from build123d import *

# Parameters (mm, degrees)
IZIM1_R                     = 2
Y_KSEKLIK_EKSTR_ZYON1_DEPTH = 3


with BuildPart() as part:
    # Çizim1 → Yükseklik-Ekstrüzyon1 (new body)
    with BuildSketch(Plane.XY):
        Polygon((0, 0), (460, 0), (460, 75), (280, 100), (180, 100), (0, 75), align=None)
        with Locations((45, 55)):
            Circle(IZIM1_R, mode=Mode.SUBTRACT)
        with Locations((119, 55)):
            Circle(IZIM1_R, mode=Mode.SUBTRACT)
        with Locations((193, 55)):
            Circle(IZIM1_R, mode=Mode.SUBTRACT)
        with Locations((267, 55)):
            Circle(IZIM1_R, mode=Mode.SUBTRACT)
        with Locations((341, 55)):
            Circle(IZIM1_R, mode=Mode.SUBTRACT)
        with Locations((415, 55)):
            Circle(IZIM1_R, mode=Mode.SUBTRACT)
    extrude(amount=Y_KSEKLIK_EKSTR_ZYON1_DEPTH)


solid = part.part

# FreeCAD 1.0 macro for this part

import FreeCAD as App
import Part
import Sketcher

V = App.Vector
Q = App.Units.Quantity

doc = App.newDocument("Part")
body = doc.addObject("PartDesign::Body", "Body")

sketch1 = body.newObject("Sketcher::SketchObject", "Sketch")
sketch1.AttachmentSupport = (doc.getObject("XY_Plane"), [""])
sketch1.MapMode = "FlatFace"
sketch1.addGeometry([
    Part.LineSegment(V(0, 0, 0), V(460, 0, 0)),
    Part.LineSegment(V(460, 0, 0), V(460, 75, 0)),
    Part.LineSegment(V(460, 75, 0), V(280, 100, 0)),
    Part.LineSegment(V(280, 100, 0), V(180, 100, 0)),
    Part.LineSegment(V(180, 100, 0), V(0, 75, 0)),
    Part.LineSegment(V(0, 75, 0), V(0, 0, 0)),
    Part.Circle(V(45, 55, 0), V(0, 0, 1), 2),
    Part.Circle(V(119, 55, 0), V(0, 0, 1), 2),
    Part.Circle(V(193, 55, 0), V(0, 0, 1), 2),
    Part.Circle(V(267, 55, 0), V(0, 0, 1), 2),
    Part.Circle(V(341, 55, 0), V(0, 0, 1), 2),
    Part.Circle(V(415, 55, 0), V(0, 0, 1), 2),
], False)
sketch1.addConstraint([
    Sketcher.Constraint("Coincident", 0, 2, 1, 1),
    Sketcher.Constraint("Coincident", 1, 2, 2, 1),
    Sketcher.Constraint("Coincident", 2, 2, 3, 1),
    Sketcher.Constraint("Coincident", 3, 2, 4, 1),
    Sketcher.Constraint("Coincident", 4, 2, 5, 1),
    Sketcher.Constraint("Coincident", 5, 2, 0, 1),
    Sketcher.Constraint("Horizontal", 0),
    Sketcher.Constraint("Vertical", 1),
    Sketcher.Constraint("Horizontal", 3),
    Sketcher.Constraint("Vertical", 5),
    Sketcher.Constraint("Coincident", 5, 2, -1, 1),
    Sketcher.Constraint("Equal", 6, 7),
    Sketcher.Constraint("Equal", 7, 8),
    Sketcher.Constraint("Equal", 8, 9),
    Sketcher.Constraint("Equal", 9, 10),
    Sketcher.Constraint("Equal", 10, 11),
    Sketcher.Constraint("Horizontal", 6, 3, 7, 3),
    Sketcher.Constraint("Horizontal", 7, 3, 8, 3),
    Sketcher.Constraint("Horizontal", 8, 3, 9, 3),
    Sketcher.Constraint("Horizontal", 9, 3, 10, 3),
    Sketcher.Constraint("Horizontal", 10, 3, 11, 3),
    Sketcher.Constraint("Horizontal", 1, 2, 4, 2),
    Sketcher.Constraint("Equal", 2, 4),
    Sketcher.Constraint("Diameter", 6, Q("4 mm")),
    Sketcher.Constraint("DistanceX", 0, 1, 0, 2, Q("460 mm")),
    Sketcher.Constraint("DistanceX", 3, 2, 3, 1, Q("100 mm")),
    Sketcher.Constraint("DistanceY", 1, 1, 1, 2, Q("75 mm")),
    Sketcher.Constraint("DistanceX", -1, 1, 6, 3, Q("45 mm")),
    Sketcher.Constraint("DistanceY", -1, 1, 6, 3, Q("55 mm")),
    Sketcher.Constraint("DistanceX", -1, 1, 7, 3, Q("119 mm")),
    Sketcher.Constraint("DistanceX", -1, 1, 8, 3, Q("193 mm")),
    Sketcher.Constraint("DistanceX", -1, 1, 9, 3, Q("267 mm")),
    Sketcher.Constraint("DistanceX", -1, 1, 10, 3, Q("341 mm")),
    Sketcher.Constraint("DistanceX", -1, 1, 11, 3, Q("415 mm")),
    Sketcher.Constraint("DistanceY", -1, 1, 2, 2, Q("100 mm")),
])
pad1 = body.newObject("PartDesign::Pad", "Pad")
pad1.Profile = sketch1
pad1.Length = 3

doc.recompute()
